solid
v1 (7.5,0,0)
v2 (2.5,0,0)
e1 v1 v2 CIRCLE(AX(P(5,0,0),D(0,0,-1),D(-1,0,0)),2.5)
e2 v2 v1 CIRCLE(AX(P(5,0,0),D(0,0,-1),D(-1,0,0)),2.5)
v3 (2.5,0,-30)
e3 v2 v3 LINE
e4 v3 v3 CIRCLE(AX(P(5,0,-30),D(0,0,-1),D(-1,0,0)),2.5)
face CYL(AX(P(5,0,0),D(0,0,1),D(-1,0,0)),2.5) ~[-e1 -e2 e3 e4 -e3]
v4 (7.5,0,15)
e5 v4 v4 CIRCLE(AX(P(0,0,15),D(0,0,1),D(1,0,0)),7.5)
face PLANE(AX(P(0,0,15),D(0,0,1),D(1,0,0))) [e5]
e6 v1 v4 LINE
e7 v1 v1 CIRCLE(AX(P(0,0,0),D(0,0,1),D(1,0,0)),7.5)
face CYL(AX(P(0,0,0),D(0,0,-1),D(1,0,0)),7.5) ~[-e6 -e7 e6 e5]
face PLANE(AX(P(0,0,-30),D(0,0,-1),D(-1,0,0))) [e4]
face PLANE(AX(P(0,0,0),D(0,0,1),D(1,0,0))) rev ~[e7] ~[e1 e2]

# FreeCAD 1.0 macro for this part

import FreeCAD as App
import Part
import Sketcher

doc = App.newDocument("Part")
body = doc.addObject("PartDesign::Body", "Body")

# Sketch on XY plane
sketch1 = body.newObject("Sketcher::SketchObject", "Sketch")
sketch1.AttachmentSupport = (doc.getObject("XY_Plane"), [""])
sketch1.MapMode = "FlatFace"
sketch1.addGeometry(Part.Circle(App.Vector(0, 0, 0), App.Vector(0, 0, 1), 8), False)
sketch1.addConstraint([
    Sketcher.Constraint("Coincident", 0, 3, -1, 1),
    Sketcher.Constraint("Diameter", 0, 15.0),
])
pad1 = body.newObject("PartDesign::Pad", "Pad")
pad1.Profile = sketch1
pad1.Length = 15

# Sketch on XY plane
sketch2 = body.newObject("Sketcher::SketchObject", "Sketch001")
sketch2.AttachmentSupport = (doc.getObject("XY_Plane"), [""])
sketch2.MapMode = "FlatFace"
sketch2.addGeometry(Part.Circle(App.Vector(5, 0, 0), App.Vector(0, 0, 1), 2.5), False)
sketch2.addConstraint([
    Sketcher.Constraint("PointOnObject", 0, 3, -1),
    Sketcher.Constraint("Diameter", 0, 5.0),
    Sketcher.Constraint("DistanceX", -1, 1, 0, 3, 5.0),
])
pad2 = body.newObject("PartDesign::Pad", "Pad001")
pad2.Profile = sketch2
pad2.Length = 30
pad2.Reversed = True

doc.recompute()
